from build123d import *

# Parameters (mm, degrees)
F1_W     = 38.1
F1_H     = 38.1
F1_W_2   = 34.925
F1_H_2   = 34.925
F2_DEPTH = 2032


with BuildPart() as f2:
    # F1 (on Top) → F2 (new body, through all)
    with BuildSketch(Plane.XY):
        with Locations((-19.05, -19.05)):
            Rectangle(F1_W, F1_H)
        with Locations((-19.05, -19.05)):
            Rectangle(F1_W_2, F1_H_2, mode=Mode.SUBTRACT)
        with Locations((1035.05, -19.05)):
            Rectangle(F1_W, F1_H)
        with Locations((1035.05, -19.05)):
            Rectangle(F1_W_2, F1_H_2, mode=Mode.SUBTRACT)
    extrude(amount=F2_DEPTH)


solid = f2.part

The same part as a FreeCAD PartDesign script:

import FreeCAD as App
import Part
import Sketcher
Q = App.Units.Quantity

doc = App.newDocument("Part")
body = doc.addObject("PartDesign::Body", "Body")
body.AllowCompound = True

sketch1 = doc.addObject("Sketcher::SketchObject", "Sketch")
body.addObject(sketch1)
sketch1.AttachmentSupport = (doc.XY_Plane, [""])
sketch1.MapMode = "FlatFace"
sketch1.addGeometry([
    Part.LineSegment(App.Vector(-38.1, 0, 0), App.Vector(-38.1, -38.1, 0)),
    Part.LineSegment(App.Vector(-38.1, -38.1, 0), App.Vector(0, -38.1, 0)),
    Part.LineSegment(App.Vector(0, -38.1, 0), App.Vector(0, 0, 0)),
    Part.LineSegment(App.Vector(0, 0, 0), App.Vector(-38.1, 0, 0)),
    Part.LineSegment(App.Vector(-1.5875, -36.5125, 0), App.Vector(-36.5125, -36.5125, 0)),
    Part.LineSegment(App.Vector(-36.5125, -36.5125, 0), App.Vector(-36.5125, -1.5875, 0)),
    Part.LineSegment(App.Vector(-36.5125, -1.5875, 0), App.Vector(-1.5875, -1.5875, 0)),
    Part.LineSegment(App.Vector(-1.5875, -1.5875, 0), App.Vector(-1.5875, -36.5125, 0)),
    Part.LineSegment(App.Vector(1016, 0, 0), App.Vector(1016, -38.1, 0)),
    Part.LineSegment(App.Vector(1016, -38.1, 0), App.Vector(1054.1, -38.1, 0)),
    Part.LineSegment(App.Vector(1054.1, -38.1, 0), App.Vector(1054.1, 0, 0)),
    Part.LineSegment(App.Vector(1054.1, 0, 0), App.Vector(1016, 0, 0)),
    Part.LineSegment(App.Vector(1052.5125, -36.5125, 0), App.Vector(1017.5875, -36.5125, 0)),
    Part.LineSegment(App.Vector(1017.5875, -36.5125, 0), App.Vector(1017.5875, -1.5875, 0)),
    Part.LineSegment(App.Vector(1017.5875, -1.5875, 0), App.Vector(1052.5125, -1.5875, 0)),
    Part.LineSegment(App.Vector(1052.5125, -1.5875, 0), App.Vector(1052.5125, -36.5125, 0)),
], False)
sketch1.addConstraint([
    Sketcher.Constraint("Coincident", 0, 2, 1, 1),
    Sketcher.Constraint("Coincident", 1, 2, 2, 1),
    Sketcher.Constraint("Coincident", 2, 2, 3, 1),
    Sketcher.Constraint("Coincident", 3, 2, 0, 1),
    Sketcher.Constraint("Coincident", 4, 2, 5, 1),
    Sketcher.Constraint("Coincident", 5, 2, 6, 1),
    Sketcher.Constraint("Coincident", 6, 2, 7, 1),
    Sketcher.Constraint("Coincident", 7, 2, 4, 1),
    Sketcher.Constraint("Coincident", 8, 2, 9, 1),
    Sketcher.Constraint("Coincident", 9, 2, 10, 1),
    Sketcher.Constraint("Coincident", 10, 2, 11, 1),
    Sketcher.Constraint("Coincident", 11, 2, 8, 1),
    Sketcher.Constraint("Coincident", 12, 2, 13, 1),
    Sketcher.Constraint("Coincident", 13, 2, 14, 1),
    Sketcher.Constraint("Coincident", 14, 2, 15, 1),
    Sketcher.Constraint("Coincident", 15, 2, 12, 1),
    Sketcher.Constraint("Vertical", 0),
    Sketcher.Constraint("Horizontal", 1),
    Sketcher.Constraint("Vertical", 2),
    Sketcher.Constraint("Horizontal", 3),
    Sketcher.Constraint("Horizontal", 4),
    Sketcher.Constraint("Vertical", 5),
    Sketcher.Constraint("Horizontal", 6),
    Sketcher.Constraint("Vertical", 7),
    Sketcher.Constraint("Vertical", 8),
    Sketcher.Constraint("Horizontal", 9),
    Sketcher.Constraint("Vertical", 10),
    Sketcher.Constraint("Horizontal", 11),
    Sketcher.Constraint("Horizontal", 12),
    Sketcher.Constraint("Vertical", 13),
    Sketcher.Constraint("Horizontal", 14),
    Sketcher.Constraint("Vertical", 15),
    Sketcher.Constraint("Coincident", 2, 2, -1, 1),
    Sketcher.Constraint("PointOnObject", 10, 2, -1),
    Sketcher.Constraint("Horizontal", 1, 2, 8, 2),
    Sketcher.Constraint("Horizontal", 7, 2, 12, 2),
    Sketcher.Constraint("Horizontal", 6, 2, 13, 2),
    Sketcher.Constraint("Equal", 3, 9),
    Sketcher.Constraint("Equal", 6, 12),
    Sketcher.Constraint("Equal", 11, 0),
    Sketcher.Constraint("Equal", 14, 5),
    Sketcher.Constraint("DistanceX", 1, 1, 1, 2, Q("1.5 in")),
    Sketcher.Constraint("DistanceX", -1, 1, 8, 2, Q("40 in")),
    Sketcher.Constraint("DistanceX", 4, 2, 4, 1, Q("1.375 in")),
    Sketcher.Constraint("DistanceX", 4, 2, -1, 1, Q("1.4375 in")),
    Sketcher.Constraint("DistanceY", 4, 2, -1, 1, Q("1.4375 in")),
    Sketcher.Constraint("DistanceX", -1, 1, 12, 2, Q("40.0625 in")),
])
pad1 = doc.addObject("PartDesign::Pad", "Pad")
body.addObject(pad1)
pad1.Profile = sketch1
pad1.Length = Q("80 in")

doc.recompute()
